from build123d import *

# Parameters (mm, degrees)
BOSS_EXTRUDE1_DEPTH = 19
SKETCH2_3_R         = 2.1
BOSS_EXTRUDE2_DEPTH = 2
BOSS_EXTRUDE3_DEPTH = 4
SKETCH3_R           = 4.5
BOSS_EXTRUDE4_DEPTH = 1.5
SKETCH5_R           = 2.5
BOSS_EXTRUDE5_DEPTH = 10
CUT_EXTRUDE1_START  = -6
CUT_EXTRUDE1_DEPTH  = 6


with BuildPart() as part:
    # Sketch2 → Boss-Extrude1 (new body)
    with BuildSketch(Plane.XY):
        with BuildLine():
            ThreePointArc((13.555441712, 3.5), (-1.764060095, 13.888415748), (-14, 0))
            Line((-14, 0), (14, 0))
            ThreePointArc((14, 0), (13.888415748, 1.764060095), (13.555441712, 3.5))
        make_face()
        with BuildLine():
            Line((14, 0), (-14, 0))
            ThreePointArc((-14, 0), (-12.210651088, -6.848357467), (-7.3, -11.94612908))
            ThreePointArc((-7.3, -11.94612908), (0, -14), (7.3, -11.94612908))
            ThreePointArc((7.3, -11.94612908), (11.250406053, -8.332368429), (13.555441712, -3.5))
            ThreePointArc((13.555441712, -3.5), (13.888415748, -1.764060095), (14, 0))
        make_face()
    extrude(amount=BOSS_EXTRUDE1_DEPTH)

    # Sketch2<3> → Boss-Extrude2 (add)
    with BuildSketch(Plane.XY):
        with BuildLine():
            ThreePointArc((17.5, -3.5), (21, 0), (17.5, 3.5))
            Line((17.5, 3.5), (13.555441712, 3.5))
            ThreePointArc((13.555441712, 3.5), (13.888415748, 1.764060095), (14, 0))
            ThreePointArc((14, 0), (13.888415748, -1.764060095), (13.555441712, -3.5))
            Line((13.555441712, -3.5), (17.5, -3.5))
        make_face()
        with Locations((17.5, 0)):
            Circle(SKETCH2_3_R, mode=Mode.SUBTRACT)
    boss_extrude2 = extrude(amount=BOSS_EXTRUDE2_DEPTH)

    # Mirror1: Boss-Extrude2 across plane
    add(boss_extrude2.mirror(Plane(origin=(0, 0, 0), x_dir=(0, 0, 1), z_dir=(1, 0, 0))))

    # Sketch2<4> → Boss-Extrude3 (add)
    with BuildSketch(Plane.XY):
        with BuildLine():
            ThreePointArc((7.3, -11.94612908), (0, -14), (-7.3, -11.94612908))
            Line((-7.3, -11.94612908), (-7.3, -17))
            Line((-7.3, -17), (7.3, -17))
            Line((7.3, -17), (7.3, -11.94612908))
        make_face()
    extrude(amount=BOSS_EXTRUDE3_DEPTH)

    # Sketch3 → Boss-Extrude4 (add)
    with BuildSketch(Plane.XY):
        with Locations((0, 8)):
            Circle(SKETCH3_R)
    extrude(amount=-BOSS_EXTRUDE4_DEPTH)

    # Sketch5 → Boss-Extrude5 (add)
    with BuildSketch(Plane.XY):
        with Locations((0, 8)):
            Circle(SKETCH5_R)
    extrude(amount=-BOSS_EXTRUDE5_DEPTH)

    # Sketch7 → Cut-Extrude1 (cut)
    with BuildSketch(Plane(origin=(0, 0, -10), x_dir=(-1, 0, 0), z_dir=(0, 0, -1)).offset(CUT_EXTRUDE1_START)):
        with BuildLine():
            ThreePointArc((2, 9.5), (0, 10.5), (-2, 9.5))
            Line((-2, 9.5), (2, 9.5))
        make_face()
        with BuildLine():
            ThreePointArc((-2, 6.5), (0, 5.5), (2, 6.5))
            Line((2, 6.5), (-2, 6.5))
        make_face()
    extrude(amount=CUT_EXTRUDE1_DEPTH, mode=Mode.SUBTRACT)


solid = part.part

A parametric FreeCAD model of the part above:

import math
import FreeCAD as App
import Part
import Sketcher

V = App.Vector
Q = App.Units.Quantity

doc = App.newDocument("Part")
body = doc.addObject("PartDesign::Body", "Body")

sketch1 = body.newObject("Sketcher::SketchObject", "Sketch")
sketch1.AttachmentSupport = (doc.getObject("XY_Plane"), [""])
sketch1.MapMode = "FlatFace"
sketch1.addGeometry(Part.ArcOfCircle(Part.Circle(V(0, 0, 0), V(0, 0, 1), 14), math.radians(14), math.radians(180)), False)
sketch1.addGeometry(Part.ArcOfCircle(Part.Circle(V(0, 0, 0), V(0, 0, 1), 14), math.radians(-180), math.radians(-121)), False)
sketch1.addGeometry(Part.ArcOfCircle(Part.Circle(V(0, 0, 0), V(0, 0, 1), 14), math.radians(-121), math.radians(-59)), False)
sketch1.addGeometry(Part.ArcOfCircle(Part.Circle(V(0, 0, 0), V(0, 0, 1), 14), math.radians(-59), math.radians(-14)), False)
sketch1.addGeometry(Part.ArcOfCircle(Part.Circle(V(0, 0, 0), V(0, 0, 1), 14), math.radians(-14.48), math.radians(0)), False)
sketch1.addGeometry(Part.ArcOfCircle(Part.Circle(V(0, 0, 0), V(0, 0, 1), 14), math.radians(0), math.radians(14.48)), False)
sketch1.addConstraint(Sketcher.Constraint("Tangent", 0, 2, 1, 1))
sketch1.addConstraint(Sketcher.Constraint("Tangent", 1, 2, 2, 1))
sketch1.addConstraint(Sketcher.Constraint("Tangent", 2, 2, 3, 1))
sketch1.addConstraint(Sketcher.Constraint("Tangent", 3, 2, 4, 1))
sketch1.addConstraint(Sketcher.Constraint("Tangent", 4, 2, 5, 1))
sketch1.addConstraint(Sketcher.Constraint("Tangent", 5, 2, 0, 1))
sketch1.addConstraint(Sketcher.Constraint("Coincident", 0, 3, -1, 1))
sketch1.addConstraint(Sketcher.Constraint("Coincident", 2, 3, -1, 1))
sketch1.addConstraint(Sketcher.Constraint("Equal", 2, 3))
sketch1.addConstraint(Sketcher.Constraint("PointOnObject", 0, 2, -1))
sketch1.addConstraint(Sketcher.Constraint("PointOnObject", 4, 2, -1))
sketch1.addConstraint(Sketcher.Constraint("Horizontal", 1, 2, 2, 2))
sketch1.addConstraint(Sketcher.Constraint("Vertical", 3, 2, 5, 2))
sketch1.addConstraint(Sketcher.Constraint("Radius", 0, Q("14 mm")))
sketch1.addConstraint(Sketcher.Constraint("DistanceY", 3, 2, 5, 2, Q("7 mm")))
sketch1.addConstraint(Sketcher.Constraint("DistanceX", 1, 2, -1, 1, Q("7.3 mm")))
pad1 = body.newObject("PartDesign::Pad", "Pad")
pad1.Profile = sketch1
pad1.Length = 19

sketch2 = body.newObject("Sketcher::SketchObject", "Sketch001")
sketch2.AttachmentSupport = (doc.getObject("XY_Plane"), [""])
sketch2.MapMode = "FlatFace"
sketch2.addGeometry(Part.ArcOfCircle(Part.Circle(V(17.5, 0, 0), V(0, 0, 1), 3.5), math.radians(-90), math.radians(90)), False)
sketch2.addGeometry(Part.LineSegment(V(17.5, 3.5, 0), V(13.6, 3.5, 0)), False)
sketch2.addGeometry(Part.ArcOfCircle(Part.Circle(V(0, 0, 0), V(0, 0, 1), 14), math.radians(0), math.radians(14.48)), False)
sketch2.addGeometry(Part.ArcOfCircle(Part.Circle(V(0, 0, 0), V(0, 0, 1), 14), math.radians(-14.48), math.radians(0)), False)
sketch2.addGeometry(Part.LineSegment(V(13.6, -3.5, 0), V(17.5, -3.5, 0)), False)
sketch2.addGeometry(Part.Circle(V(17.5, 0, 0), V(0, 0, 1), 2.1), False)
sketch2.addConstraint(Sketcher.Constraint("Tangent", 0, 2, 1, 1))
sketch2.addConstraint(Sketcher.Constraint("Coincident", 1, 2, 2, 2))
sketch2.addConstraint(Sketcher.Constraint("Tangent", 2, 1, 3, 2))
sketch2.addConstraint(Sketcher.Constraint("Coincident", 3, 1, 4, 1))
sketch2.addConstraint(Sketcher.Constraint("Tangent", 4, 2, 0, 1))
sketch2.addConstraint(Sketcher.Constraint("Horizontal", 1))
sketch2.addConstraint(Sketcher.Constraint("Horizontal", 4))
sketch2.addConstraint(Sketcher.Constraint("Coincident", 2, 3, -1, 1))
sketch2.addConstraint(Sketcher.Constraint("Coincident", 5, 3, 0, 3))
sketch2.addConstraint(Sketcher.Constraint("Equal", 2, 3))
sketch2.addConstraint(Sketcher.Constraint("PointOnObject", 0, 3, -1))
sketch2.addConstraint(Sketcher.Constraint("PointOnObject", 2, 1, -1))
sketch2.addConstraint(Sketcher.Constraint("Radius", 2, Q("14 mm")))
sketch2.addConstraint(Sketcher.Constraint("Diameter", 5, Q("4.2 mm")))
sketch2.addConstraint(Sketcher.Constraint("Radius", 0, Q("3.5 mm")))
sketch2.addConstraint(Sketcher.Constraint("DistanceX", -1, 1, 0, 3, Q("17.5 mm")))
pad2 = body.newObject("PartDesign::Pad", "Pad001")
pad2.Profile = sketch2
pad2.Length = 2
doc.recompute()

mirrored = body.newObject("PartDesign::Mirrored", "Mirrored")
mirrored.Originals = [pad2]
mirrored.MirrorPlane = (doc.getObject("YZ_Plane"), [""])
body.Tip = mirrored

sketch3 = body.newObject("Sketcher::SketchObject", "Sketch002")
sketch3.AttachmentSupport = (doc.getObject("XY_Plane"), [""])
sketch3.MapMode = "FlatFace"
sketch3.addGeometry(Part.ArcOfCircle(Part.Circle(V(0, 0, 0), V(0, 0, 1), 14), math.radians(-121), math.radians(-59)), False)
sketch3.addGeometry(Part.LineSegment(V(-7, -12, 0), V(-7, -17, 0)), False)
sketch3.addGeometry(Part.LineSegment(V(-7, -17, 0), V(7, -17, 0)), False)
sketch3.addGeometry(Part.LineSegment(V(7, -17, 0), V(7, -12, 0)), False)
sketch3.addConstraint(Sketcher.Constraint("Coincident", 0, 1, 1, 1))
sketch3.addConstraint(Sketcher.Constraint("Coincident", 1, 2, 2, 1))
sketch3.addConstraint(Sketcher.Constraint("Coincident", 2, 2, 3, 1))
sketch3.addConstraint(Sketcher.Constraint("Coincident", 3, 2, 0, 2))
sketch3.addConstraint(Sketcher.Constraint("Vertical", 1))
sketch3.addConstraint(Sketcher.Constraint("Horizontal", 2))
sketch3.addConstraint(Sketcher.Constraint("Vertical", 3))
sketch3.addConstraint(Sketcher.Constraint("Coincident", 0, 3, -1, 1))
sketch3.addConstraint(Sketcher.Constraint("Horizontal", 0, 1, 3, 2))
sketch3.addConstraint(Sketcher.Constraint("Radius", 0, Q("14 mm")))
sketch3.addConstraint(Sketcher.Constraint("DistanceX", 2, 1, 2, 2, Q("14.6 mm")))
sketch3.addConstraint(Sketcher.Constraint("DistanceY", 1, 2, -1, 1, Q("17 mm")))
pad3 = body.newObject("PartDesign::Pad", "Pad002")
pad3.Profile = sketch3
pad3.Length = 4

sketch4 = body.newObject("Sketcher::SketchObject", "Sketch003")
sketch4.AttachmentSupport = (doc.getObject("XY_Plane"), [""])
sketch4.MapMode = "FlatFace"
sketch4.addGeometry(Part.Circle(V(0, 8, 0), V(0, 0, 1), 4.5), False)
sketch4.addConstraint(Sketcher.Constraint("PointOnObject", 0, 3, -2))
sketch4.addConstraint(Sketcher.Constraint("Diameter", 0, Q("9 mm")))
sketch4.addConstraint(Sketcher.Constraint("DistanceY", -1, 1, 0, 3, Q("8 mm")))
pad4 = body.newObject("PartDesign::Pad", "Pad003")
pad4.Profile = sketch4
pad4.Length = 1.5
pad4.Reversed = True

sketch5 = body.newObject("Sketcher::SketchObject", "Sketch004")
sketch5.AttachmentSupport = (doc.getObject("XY_Plane"), [""])
sketch5.MapMode = "FlatFace"
sketch5.addGeometry(Part.Circle(V(0, 8, 0), V(0, 0, 1), 2.5), False)
sketch5.addConstraint(Sketcher.Constraint("PointOnObject", 0, 3, -2))
sketch5.addConstraint(Sketcher.Constraint("Diameter", 0, Q("5 mm")))
sketch5.addConstraint(Sketcher.Constraint("DistanceY", -1, 1, 0, 3, Q("8 mm")))
pad5 = body.newObject("PartDesign::Pad", "Pad004")
pad5.Profile = sketch5
pad5.Length = 10
pad5.Reversed = True

sketch6 = body.newObject("Sketcher::SketchObject", "Sketch005")
sketch6.AttachmentSupport = (doc.getObject("XY_Plane"), [""])
sketch6.MapMode = "FlatFace"
sketch6.AttachmentOffset = App.Placement(V(0, 0, -4), App.Rotation())
sketch6.addGeometry(Part.ArcOfCircle(Part.Circle(V(0, 8, 0), V(0, 0, 1), 2.5), math.radians(37), math.radians(143)), False)
sketch6.addGeometry(Part.LineSegment(V(2, 9.5, 0), V(-2, 9.5, 0)), False)
sketch6.addGeometry(Part.ArcOfCircle(Part.Circle(V(0, 8, 0), V(0, 0, 1), 2.5), math.radians(-143), math.radians(-37)), False)
sketch6.addGeometry(Part.LineSegment(V(-2, 6.5, 0), V(2, 6.5, 0)), False)
sketch6.addConstraint(Sketcher.Constraint("Coincident", 0, 1, 1, 1))
sketch6.addConstraint(Sketcher.Constraint("Coincident", 1, 2, 0, 2))
sketch6.addConstraint(Sketcher.Constraint("Coincident", 2, 1, 3, 1))
sketch6.addConstraint(Sketcher.Constraint("Coincident", 3, 2, 2, 2))
sketch6.addConstraint(Sketcher.Constraint("Horizontal", 1))
sketch6.addConstraint(Sketcher.Constraint("Horizontal", 3))
sketch6.addConstraint(Sketcher.Constraint("Coincident", 2, 3, 0, 3))
sketch6.addConstraint(Sketcher.Constraint("Equal", 0, 2))
sketch6.addConstraint(Sketcher.Constraint("PointOnObject", 0, 3, -2))
sketch6.addConstraint(Sketcher.Constraint("Vertical", 1, 2, 2, 1))
sketch6.addConstraint(Sketcher.Constraint("Radius", 0, Q("2.5 mm")))
sketch6.addConstraint(Sketcher.Constraint("DistanceX", 1, 2, 1, 1, Q("4 mm")))
sketch6.addConstraint(Sketcher.Constraint("DistanceY", -1, 1, 0, 3, Q("8 mm")))
pocket1 = body.newObject("PartDesign::Pocket", "Pocket")
pocket1.Profile = sketch6
pocket1.Length = 6

doc.recompute()
